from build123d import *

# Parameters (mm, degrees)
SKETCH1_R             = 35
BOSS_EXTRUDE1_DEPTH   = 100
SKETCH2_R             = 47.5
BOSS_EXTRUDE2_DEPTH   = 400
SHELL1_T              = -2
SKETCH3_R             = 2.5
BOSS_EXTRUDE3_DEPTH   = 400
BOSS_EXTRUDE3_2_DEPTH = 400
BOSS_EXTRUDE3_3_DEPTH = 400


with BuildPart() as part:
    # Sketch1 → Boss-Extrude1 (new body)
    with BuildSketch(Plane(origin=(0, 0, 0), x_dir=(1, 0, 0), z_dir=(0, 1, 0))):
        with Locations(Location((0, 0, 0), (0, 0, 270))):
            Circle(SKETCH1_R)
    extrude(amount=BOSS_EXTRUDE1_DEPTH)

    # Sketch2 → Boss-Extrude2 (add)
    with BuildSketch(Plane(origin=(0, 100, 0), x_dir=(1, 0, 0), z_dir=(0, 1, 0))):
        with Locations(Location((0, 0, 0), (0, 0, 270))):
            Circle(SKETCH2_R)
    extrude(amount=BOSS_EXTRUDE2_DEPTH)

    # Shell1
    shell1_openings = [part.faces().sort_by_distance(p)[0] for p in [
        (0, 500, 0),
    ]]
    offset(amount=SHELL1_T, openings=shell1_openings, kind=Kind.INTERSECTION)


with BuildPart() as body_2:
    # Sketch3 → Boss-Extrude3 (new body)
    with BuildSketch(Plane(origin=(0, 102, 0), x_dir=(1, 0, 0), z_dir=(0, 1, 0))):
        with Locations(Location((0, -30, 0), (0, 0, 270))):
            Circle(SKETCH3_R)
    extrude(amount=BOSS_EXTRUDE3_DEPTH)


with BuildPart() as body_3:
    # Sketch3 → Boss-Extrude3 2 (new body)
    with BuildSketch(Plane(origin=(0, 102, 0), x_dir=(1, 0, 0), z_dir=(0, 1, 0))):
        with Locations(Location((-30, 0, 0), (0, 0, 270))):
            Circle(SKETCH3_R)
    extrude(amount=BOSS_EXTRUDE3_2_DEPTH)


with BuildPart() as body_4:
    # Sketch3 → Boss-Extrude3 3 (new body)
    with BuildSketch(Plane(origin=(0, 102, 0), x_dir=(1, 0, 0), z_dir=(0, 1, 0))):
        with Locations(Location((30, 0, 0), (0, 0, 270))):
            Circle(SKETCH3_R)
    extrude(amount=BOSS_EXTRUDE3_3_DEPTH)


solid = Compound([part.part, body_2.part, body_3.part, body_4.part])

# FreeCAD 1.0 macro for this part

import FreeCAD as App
import Part
import Sketcher

V = App.Vector


def faces_at(feature, points):
    """Names of the faces that lie closest to the given points."""
    faces = feature.Shape.Faces
    near = lambda p: min(range(len(faces)), key=lambda i: faces[i].distToShape(Part.Vertex(*p))[0])
    return sorted({f"Face{near(p) + 1}" for p in points})

doc = App.newDocument("Part")
params = doc.addObject("Spreadsheet::Sheet", "Params")
for row, (alias, value) in enumerate([
    ("sketch1_diameter", "70 mm"),
    ("pad1_length", "100 mm"),
    ("sketch2_diameter", "95 mm"),
    ("pad2_length", "400 mm"),
    ("thickness_wall", "2 mm"),
    ("sketch3_diameter", "5 mm"),
    ("pad3_length", "400 mm"),
    ("sketch4_diameter", "5 mm"),
    ("pad4_length", "400 mm"),
    ("sketch5_diameter", "5 mm"),
    ("pad5_length", "400 mm"),
], start=1):
    params.set(f"A{row}", alias)
    params.set(f"B{row}", "=" + value)
    params.setAlias(f"B{row}", alias)

body = doc.addObject("PartDesign::Body", "Body")

sketch1 = body.newObject("Sketcher::SketchObject", "Sketch")
sketch1.AttachmentSupport = (doc.getObject("XZ_Plane"), [""])
sketch1.MapMode = "FlatFace"
sketch1.addGeometry(Part.Circle(V(0, 0, 0), V(0, 0, 1), 35), False)
sketch1.addConstraint([
    Sketcher.Constraint("Coincident", 0, 3, -1, 1),
    Sketcher.Constraint("Diameter", 0, 70.0),
])
sketch1.setExpression("Constraints[1]", "Params.sketch1_diameter")
pad1 = body.newObject("PartDesign::Pad", "Pad")
pad1.Profile = sketch1
pad1.setExpression("Length", "Params.pad1_length")
pad1.Reversed = True

sketch2 = body.newObject("Sketcher::SketchObject", "Sketch001")
sketch2.AttachmentSupport = (doc.getObject("XZ_Plane"), [""])
sketch2.MapMode = "FlatFace"
sketch2.AttachmentOffset = App.Placement(V(0, 0, -100), App.Rotation())
sketch2.addGeometry(Part.Circle(V(0, 0, 0), V(0, 0, 1), 47.5), False)
sketch2.addConstraint([
    Sketcher.Constraint("Coincident", 0, 3, -1, 1),
    Sketcher.Constraint("Diameter", 0, 95.0),
])
sketch2.setExpression("Constraints[1]", "Params.sketch2_diameter")
pad2 = body.newObject("PartDesign::Pad", "Pad001")
pad2.Profile = sketch2
pad2.setExpression("Length", "Params.pad2_length")
pad2.Reversed = True
doc.recompute()

thickness = body.newObject("PartDesign::Thickness", "Thickness")
thickness.Base = (pad2, faces_at(pad2, [(0, 500, 0)]))
thickness.setExpression("Value", "Params.thickness_wall")
thickness.Reversed = True
thickness.Join = "Intersection"
body2 = doc.addObject("PartDesign::Body", "Body001")

sketch3 = body2.newObject("Sketcher::SketchObject", "Sketch002")
sketch3.AttachmentSupport = (doc.getObject("XZ_Plane001"), [""])
sketch3.MapMode = "FlatFace"
sketch3.AttachmentOffset = App.Placement(V(0, 0, -102), App.Rotation())
sketch3.addGeometry(Part.Circle(V(0, 30, 0), V(0, 0, 1), 2.5), False)
sketch3.addConstraint([
    Sketcher.Constraint("PointOnObject", 0, 3, -2),
    Sketcher.Constraint("Diameter", 0, 5.0),
    Sketcher.Constraint("DistanceY", -1, 1, 0, 3, 30.0),
])
sketch3.setExpression("Constraints[1]", "Params.sketch3_diameter")
pad3 = body2.newObject("PartDesign::Pad", "Pad002")
pad3.Profile = sketch3
pad3.setExpression("Length", "Params.pad3_length")
pad3.Reversed = True
body3 = doc.addObject("PartDesign::Body", "Body002")

sketch4 = body3.newObject("Sketcher::SketchObject", "Sketch003")
sketch4.AttachmentSupport = (doc.getObject("XZ_Plane002"), [""])
sketch4.MapMode = "FlatFace"
sketch4.AttachmentOffset = App.Placement(V(0, 0, -102), App.Rotation())
sketch4.addGeometry(Part.Circle(V(-30, 0, 0), V(0, 0, 1), 2.5), False)
sketch4.addConstraint([
    Sketcher.Constraint("PointOnObject", 0, 3, -1),
    Sketcher.Constraint("Diameter", 0, 5.0),
    Sketcher.Constraint("DistanceX", 0, 3, -1, 1, 30.0),
])
sketch4.setExpression("Constraints[1]", "Params.sketch4_diameter")
pad4 = body3.newObject("PartDesign::Pad", "Pad003")
pad4.Profile = sketch4
pad4.setExpression("Length", "Params.pad4_length")
pad4.Reversed = True
body4 = doc.addObject("PartDesign::Body", "Body003")

sketch5 = body4.newObject("Sketcher::SketchObject", "Sketch004")
sketch5.AttachmentSupport = (doc.getObject("XZ_Plane003"), [""])
sketch5.MapMode = "FlatFace"
sketch5.AttachmentOffset = App.Placement(V(0, 0, -102), App.Rotation())
sketch5.addGeometry(Part.Circle(V(30, 0, 0), V(0, 0, 1), 2.5), False)
sketch5.addConstraint([
    Sketcher.Constraint("PointOnObject", 0, 3, -1),
    Sketcher.Constraint("Diameter", 0, 5.0),
    Sketcher.Constraint("DistanceX", -1, 1, 0, 3, 30.0),
])
sketch5.setExpression("Constraints[1]", "Params.sketch5_diameter")
pad5 = body4.newObject("PartDesign::Pad", "Pad004")
pad5.Profile = sketch5
pad5.setExpression("Length", "Params.pad5_length")
pad5.Reversed = True

doc.recompute()
